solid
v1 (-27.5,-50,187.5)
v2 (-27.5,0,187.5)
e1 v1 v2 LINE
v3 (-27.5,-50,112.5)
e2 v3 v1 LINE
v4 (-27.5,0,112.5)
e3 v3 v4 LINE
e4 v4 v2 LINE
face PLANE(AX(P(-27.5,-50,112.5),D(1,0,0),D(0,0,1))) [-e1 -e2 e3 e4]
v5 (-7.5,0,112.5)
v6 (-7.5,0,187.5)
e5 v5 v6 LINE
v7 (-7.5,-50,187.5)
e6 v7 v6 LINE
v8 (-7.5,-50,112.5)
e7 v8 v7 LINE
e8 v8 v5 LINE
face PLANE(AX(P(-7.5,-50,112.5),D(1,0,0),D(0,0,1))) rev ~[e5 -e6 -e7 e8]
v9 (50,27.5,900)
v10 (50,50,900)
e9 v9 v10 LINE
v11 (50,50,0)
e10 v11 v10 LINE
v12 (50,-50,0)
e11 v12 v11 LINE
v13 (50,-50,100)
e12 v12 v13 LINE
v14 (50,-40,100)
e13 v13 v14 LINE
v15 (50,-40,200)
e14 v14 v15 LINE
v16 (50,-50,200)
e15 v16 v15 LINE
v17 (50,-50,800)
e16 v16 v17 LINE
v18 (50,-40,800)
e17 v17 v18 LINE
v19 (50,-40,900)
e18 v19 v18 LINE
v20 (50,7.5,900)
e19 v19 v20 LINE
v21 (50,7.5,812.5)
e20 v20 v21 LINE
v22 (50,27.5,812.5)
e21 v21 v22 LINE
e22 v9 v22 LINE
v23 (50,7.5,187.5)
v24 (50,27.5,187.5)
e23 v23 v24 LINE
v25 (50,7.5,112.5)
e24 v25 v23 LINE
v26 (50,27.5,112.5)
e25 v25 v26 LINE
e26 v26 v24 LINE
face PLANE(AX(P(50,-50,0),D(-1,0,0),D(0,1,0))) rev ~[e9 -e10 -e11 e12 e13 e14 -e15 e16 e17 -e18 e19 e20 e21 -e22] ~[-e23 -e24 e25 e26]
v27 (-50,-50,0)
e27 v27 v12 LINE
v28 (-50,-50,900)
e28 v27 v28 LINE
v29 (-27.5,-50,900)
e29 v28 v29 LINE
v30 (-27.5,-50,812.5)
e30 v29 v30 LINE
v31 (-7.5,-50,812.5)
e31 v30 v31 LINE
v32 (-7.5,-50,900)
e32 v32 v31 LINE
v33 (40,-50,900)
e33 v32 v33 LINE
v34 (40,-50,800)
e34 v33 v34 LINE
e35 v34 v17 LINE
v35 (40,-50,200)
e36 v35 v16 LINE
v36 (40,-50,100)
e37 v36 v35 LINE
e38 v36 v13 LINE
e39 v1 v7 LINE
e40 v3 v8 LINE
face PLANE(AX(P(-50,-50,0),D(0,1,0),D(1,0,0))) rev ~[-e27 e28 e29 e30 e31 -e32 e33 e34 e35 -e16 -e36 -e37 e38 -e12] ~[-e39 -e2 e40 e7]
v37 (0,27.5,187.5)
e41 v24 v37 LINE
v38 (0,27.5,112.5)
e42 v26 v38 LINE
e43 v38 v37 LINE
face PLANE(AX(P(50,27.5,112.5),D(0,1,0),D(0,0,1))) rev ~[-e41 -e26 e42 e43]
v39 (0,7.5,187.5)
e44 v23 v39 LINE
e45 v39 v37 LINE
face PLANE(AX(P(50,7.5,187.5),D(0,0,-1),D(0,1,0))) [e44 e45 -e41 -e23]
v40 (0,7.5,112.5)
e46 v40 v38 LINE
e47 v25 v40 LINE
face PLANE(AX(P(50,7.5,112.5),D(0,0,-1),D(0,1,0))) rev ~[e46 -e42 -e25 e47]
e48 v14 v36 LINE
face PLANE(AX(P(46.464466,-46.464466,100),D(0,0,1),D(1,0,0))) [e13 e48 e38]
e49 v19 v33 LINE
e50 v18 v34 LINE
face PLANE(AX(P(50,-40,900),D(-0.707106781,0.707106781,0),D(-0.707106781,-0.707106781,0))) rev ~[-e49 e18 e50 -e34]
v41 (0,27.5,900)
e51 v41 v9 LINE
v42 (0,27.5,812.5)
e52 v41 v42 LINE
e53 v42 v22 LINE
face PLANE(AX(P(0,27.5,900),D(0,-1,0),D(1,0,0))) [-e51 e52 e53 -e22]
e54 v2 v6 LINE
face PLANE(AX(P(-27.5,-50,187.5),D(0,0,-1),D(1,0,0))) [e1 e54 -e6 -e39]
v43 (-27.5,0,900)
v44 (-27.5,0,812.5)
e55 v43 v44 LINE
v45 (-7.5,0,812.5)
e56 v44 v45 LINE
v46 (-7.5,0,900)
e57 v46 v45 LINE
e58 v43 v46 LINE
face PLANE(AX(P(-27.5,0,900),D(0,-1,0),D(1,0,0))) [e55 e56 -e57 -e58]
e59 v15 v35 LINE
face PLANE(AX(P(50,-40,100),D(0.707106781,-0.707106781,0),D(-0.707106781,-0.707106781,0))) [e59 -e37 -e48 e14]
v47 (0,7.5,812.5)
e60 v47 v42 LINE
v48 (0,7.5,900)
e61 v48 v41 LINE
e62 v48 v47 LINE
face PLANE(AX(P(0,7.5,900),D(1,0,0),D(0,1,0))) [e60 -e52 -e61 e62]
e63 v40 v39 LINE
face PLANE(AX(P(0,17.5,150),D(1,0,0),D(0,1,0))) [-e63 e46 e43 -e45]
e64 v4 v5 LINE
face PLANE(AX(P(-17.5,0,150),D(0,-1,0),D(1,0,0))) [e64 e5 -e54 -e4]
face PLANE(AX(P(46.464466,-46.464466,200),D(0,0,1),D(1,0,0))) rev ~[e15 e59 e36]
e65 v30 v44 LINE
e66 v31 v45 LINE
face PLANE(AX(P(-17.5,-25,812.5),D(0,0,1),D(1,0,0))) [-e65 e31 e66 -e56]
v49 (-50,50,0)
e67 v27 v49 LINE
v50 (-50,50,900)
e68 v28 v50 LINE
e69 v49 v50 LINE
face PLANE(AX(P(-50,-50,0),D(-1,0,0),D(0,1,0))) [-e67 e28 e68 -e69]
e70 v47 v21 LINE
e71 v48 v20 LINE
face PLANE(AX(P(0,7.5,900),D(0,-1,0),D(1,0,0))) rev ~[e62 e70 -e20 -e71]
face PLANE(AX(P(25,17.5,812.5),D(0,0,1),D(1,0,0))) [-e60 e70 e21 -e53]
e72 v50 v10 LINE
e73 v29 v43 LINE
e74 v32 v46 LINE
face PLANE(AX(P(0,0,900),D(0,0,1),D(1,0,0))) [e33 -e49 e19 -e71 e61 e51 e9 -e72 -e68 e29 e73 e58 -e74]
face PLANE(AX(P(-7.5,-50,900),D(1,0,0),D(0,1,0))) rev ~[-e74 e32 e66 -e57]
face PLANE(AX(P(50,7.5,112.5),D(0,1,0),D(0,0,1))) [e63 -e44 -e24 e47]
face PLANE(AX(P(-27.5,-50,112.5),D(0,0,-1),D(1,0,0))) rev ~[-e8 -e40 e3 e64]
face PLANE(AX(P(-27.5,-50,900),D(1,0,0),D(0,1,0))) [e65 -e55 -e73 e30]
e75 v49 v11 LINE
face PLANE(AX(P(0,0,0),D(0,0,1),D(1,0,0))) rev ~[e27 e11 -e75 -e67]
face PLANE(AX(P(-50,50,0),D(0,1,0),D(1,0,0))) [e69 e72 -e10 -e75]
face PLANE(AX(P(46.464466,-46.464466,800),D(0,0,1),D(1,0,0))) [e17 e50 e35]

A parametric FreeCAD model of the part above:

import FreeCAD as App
import Part
import Sketcher
Q = App.Units.Quantity

doc = App.newDocument("Part")
body = doc.addObject("PartDesign::Body", "Body")

sketch1 = body.newObject("Sketcher::SketchObject", "Sketch")
sketch1.AttachmentSupport = (doc.getObject("XY_Plane"), [""])
sketch1.MapMode = "FlatFace"
sketch1.addGeometry(Part.LineSegment(App.Vector(-50, 50, 0), App.Vector(-50, -50, 0)), False)
sketch1.addGeometry(Part.LineSegment(App.Vector(-50, -50, 0), App.Vector(50, -50, 0)), False)
sketch1.addGeometry(Part.LineSegment(App.Vector(50, -50, 0), App.Vector(50, 50, 0)), False)
sketch1.addGeometry(Part.LineSegment(App.Vector(50, 50, 0), App.Vector(-50, 50, 0)), False)
sketch1.addConstraint(Sketcher.Constraint("Coincident", 0, 2, 1, 1))
sketch1.addConstraint(Sketcher.Constraint("Coincident", 1, 2, 2, 1))
sketch1.addConstraint(Sketcher.Constraint("Coincident", 2, 2, 3, 1))
sketch1.addConstraint(Sketcher.Constraint("Coincident", 3, 2, 0, 1))
sketch1.addConstraint(Sketcher.Constraint("Vertical", 0))
sketch1.addConstraint(Sketcher.Constraint("Horizontal", 1))
sketch1.addConstraint(Sketcher.Constraint("Vertical", 2))
sketch1.addConstraint(Sketcher.Constraint("Horizontal", 3))
sketch1.addConstraint(Sketcher.Constraint("Symmetric", 0, 2, 2, 2, -1, 1))
sketch1.addConstraint(Sketcher.Constraint("Equal", 3, 0))
sketch1.addConstraint(Sketcher.Constraint("DistanceX", 1, 1, 1, 2, Q("100 mm")))
pad1 = body.newObject("PartDesign::Pad", "Pad")
pad1.Profile = sketch1
pad1.Length = 900

sketch2 = body.newObject("Sketcher::SketchObject", "Sketch001")
sketch2.AttachmentSupport = (doc.getObject("YZ_Plane"), [""])
sketch2.MapMode = "FlatFace"
sketch2.AttachmentOffset = App.Placement(App.Vector(0, 0, 50), App.Rotation())
sketch2.addGeometry(Part.LineSegment(App.Vector(8, 188, 0), App.Vector(8, 112, 0)), False)
sketch2.addGeometry(Part.LineSegment(App.Vector(8, 112, 0), App.Vector(28, 112, 0)), False)
sketch2.addGeometry(Part.LineSegment(App.Vector(28, 112, 0), App.Vector(28, 188, 0)), False)
sketch2.addGeometry(Part.LineSegment(App.Vector(28, 188, 0), App.Vector(8, 188, 0)), False)
sketch2.addConstraint(Sketcher.Constraint("Coincident", 0, 2, 1, 1))
sketch2.addConstraint(Sketcher.Constraint("Coincident", 1, 2, 2, 1))
sketch2.addConstraint(Sketcher.Constraint("Coincident", 2, 2, 3, 1))
sketch2.addConstraint(Sketcher.Constraint("Coincident", 3, 2, 0, 1))
sketch2.addConstraint(Sketcher.Constraint("Vertical", 0))
sketch2.addConstraint(Sketcher.Constraint("Horizontal", 1))
sketch2.addConstraint(Sketcher.Constraint("Vertical", 2))
sketch2.addConstraint(Sketcher.Constraint("Horizontal", 3))
sketch2.addConstraint(Sketcher.Constraint("DistanceX", 1, 1, 1, 2, Q("20 mm")))
sketch2.addConstraint(Sketcher.Constraint("DistanceY", 0, 2, 0, 1, Q("75 mm")))
sketch2.addConstraint(Sketcher.Constraint("DistanceX", -1, 1, 0, 2, Q("7.5 mm")))
sketch2.addConstraint(Sketcher.Constraint("DistanceY", -1, 1, 0, 2, Q("112.5 mm")))
pocket1 = body.newObject("PartDesign::Pocket", "Pocket")
pocket1.Profile = sketch2
pocket1.Length = 50

sketch3 = body.newObject("Sketcher::SketchObject", "Sketch002")
sketch3.AttachmentSupport = (doc.getObject("XZ_Plane"), [""])
sketch3.MapMode = "FlatFace"
sketch3.AttachmentOffset = App.Placement(App.Vector(0, 0, 50), App.Rotation())
sketch3.addGeometry(Part.LineSegment(App.Vector(-28, 188, 0), App.Vector(-28, 112, 0)), False)
sketch3.addGeometry(Part.LineSegment(App.Vector(-28, 112, 0), App.Vector(-8, 112, 0)), False)
sketch3.addGeometry(Part.LineSegment(App.Vector(-8, 112, 0), App.Vector(-8, 188, 0)), False)
sketch3.addGeometry(Part.LineSegment(App.Vector(-8, 188, 0), App.Vector(-28, 188, 0)), False)
sketch3.addConstraint(Sketcher.Constraint("Coincident", 0, 2, 1, 1))
sketch3.addConstraint(Sketcher.Constraint("Coincident", 1, 2, 2, 1))
sketch3.addConstraint(Sketcher.Constraint("Coincident", 2, 2, 3, 1))
sketch3.addConstraint(Sketcher.Constraint("Coincident", 3, 2, 0, 1))
sketch3.addConstraint(Sketcher.Constraint("Vertical", 0))
sketch3.addConstraint(Sketcher.Constraint("Horizontal", 1))
sketch3.addConstraint(Sketcher.Constraint("Vertical", 2))
sketch3.addConstraint(Sketcher.Constraint("Horizontal", 3))
sketch3.addConstraint(Sketcher.Constraint("DistanceX", 1, 1, 1, 2, Q("20 mm")))
sketch3.addConstraint(Sketcher.Constraint("DistanceY", 0, 2, 0, 1, Q("75 mm")))
sketch3.addConstraint(Sketcher.Constraint("DistanceX", 0, 2, -1, 1, Q("27.5 mm")))
sketch3.addConstraint(Sketcher.Constraint("DistanceY", -1, 1, 0, 2, Q("112.5 mm")))
pocket2 = body.newObject("PartDesign::Pocket", "Pocket001")
pocket2.Profile = sketch3
pocket2.Length = 50
body2 = doc.addObject("PartDesign::Body", "Body001")

sketch4 = body2.newObject("Sketcher::SketchObject", "Sketch003")
sketch4.AttachmentSupport = (doc.getObject("XY_Plane001"), [""])
sketch4.MapMode = "FlatFace"
sketch4.addGeometry(Part.LineSegment(App.Vector(50, -40, 0), App.Vector(40, -50, 0)), False)
sketch4.addGeometry(Part.LineSegment(App.Vector(40, -50, 0), App.Vector(50, -50, 0)), False)
sketch4.addGeometry(Part.LineSegment(App.Vector(50, -50, 0), App.Vector(50, -40, 0)), False)
sketch4.addConstraint(Sketcher.Constraint("Coincident", 0, 2, 1, 1))
sketch4.addConstraint(Sketcher.Constraint("Coincident", 1, 2, 2, 1))
sketch4.addConstraint(Sketcher.Constraint("Coincident", 2, 2, 0, 1))
sketch4.addConstraint(Sketcher.Constraint("Horizontal", 1))
sketch4.addConstraint(Sketcher.Constraint("Vertical", 2))
sketch4.addConstraint(Sketcher.Constraint("Equal", 1, 2))
sketch4.addConstraint(Sketcher.Constraint("DistanceX", 1, 1, 1, 2, Q("10 mm")))
sketch4.addConstraint(Sketcher.Constraint("DistanceX", -1, 1, 0, 2, Q("40 mm")))
sketch4.addConstraint(Sketcher.Constraint("DistanceY", 0, 2, -1, 1, Q("50 mm")))
pad2 = body2.newObject("PartDesign::Pad", "Pad001")
pad2.Profile = sketch4
pad2.Length = 100
body3 = doc.addObject("PartDesign::Body", "Body002")
doc.recompute()

body2.Placement = App.Placement(App.Vector(0, 0, 100), App.Rotation(App.Vector(0, 0, 1), 0))
boolean = body3.newObject("PartDesign::Boolean", "Boolean")
boolean.Type = "Fuse"
boolean.addObjects([body2])
doc.recompute()

boolean2 = body.newObject("PartDesign::Boolean", "Boolean001")
boolean2.Type = "Cut"
boolean2.addObjects([body3])

sketch5 = body.newObject("Sketcher::SketchObject", "Sketch004")
sketch5.AttachmentSupport = (doc.getObject("XY_Plane"), [""])
sketch5.MapMode = "FlatFace"
sketch5.AttachmentOffset = App.Placement(App.Vector(0, 0, 900), App.Rotation())
sketch5.addGeometry(Part.LineSegment(App.Vector(0, 28, 0), App.Vector(0, 8, 0)), False)
sketch5.addGeometry(Part.LineSegment(App.Vector(0, 8, 0), App.Vector(50, 8, 0)), False)
sketch5.addGeometry(Part.LineSegment(App.Vector(50, 8, 0), App.Vector(50, 28, 0)), False)
sketch5.addGeometry(Part.LineSegment(App.Vector(50, 28, 0), App.Vector(0, 28, 0)), False)
sketch5.addGeometry(Part.LineSegment(App.Vector(-28, 0, 0), App.Vector(-28, -50, 0)), False)
sketch5.addGeometry(Part.LineSegment(App.Vector(-28, -50, 0), App.Vector(-8, -50, 0)), False)
sketch5.addGeometry(Part.LineSegment(App.Vector(-8, -50, 0), App.Vector(-8, 0, 0)), False)
sketch5.addGeometry(Part.LineSegment(App.Vector(-8, 0, 0), App.Vector(-28, 0, 0)), False)
sketch5.addConstraint(Sketcher.Constraint("Coincident", 0, 2, 1, 1))
sketch5.addConstraint(Sketcher.Constraint("Coincident", 1, 2, 2, 1))
sketch5.addConstraint(Sketcher.Constraint("Coincident", 2, 2, 3, 1))
sketch5.addConstraint(Sketcher.Constraint("Coincident", 3, 2, 0, 1))
sketch5.addConstraint(Sketcher.Constraint("Coincident", 4, 2, 5, 1))
sketch5.addConstraint(Sketcher.Constraint("Coincident", 5, 2, 6, 1))
sketch5.addConstraint(Sketcher.Constraint("Coincident", 6, 2, 7, 1))
sketch5.addConstraint(Sketcher.Constraint("Coincident", 7, 2, 4, 1))
sketch5.addConstraint(Sketcher.Constraint("Vertical", 0))
sketch5.addConstraint(Sketcher.Constraint("Horizontal", 1))
sketch5.addConstraint(Sketcher.Constraint("Vertical", 2))
sketch5.addConstraint(Sketcher.Constraint("Horizontal", 3))
sketch5.addConstraint(Sketcher.Constraint("Vertical", 4))
sketch5.addConstraint(Sketcher.Constraint("Horizontal", 5))
sketch5.addConstraint(Sketcher.Constraint("Vertical", 6))
sketch5.addConstraint(Sketcher.Constraint("Horizontal", 7))
sketch5.addConstraint(Sketcher.Constraint("PointOnObject", 0, 2, -2))
sketch5.addConstraint(Sketcher.Constraint("PointOnObject", 6, 2, -1))
sketch5.addConstraint(Sketcher.Constraint("Equal", 7, 0))
sketch5.addConstraint(Sketcher.Constraint("Equal", 3, 4))
sketch5.addConstraint(Sketcher.Constraint("DistanceX", 1, 1, 1, 2, Q("50 mm")))
sketch5.addConstraint(Sketcher.Constraint("DistanceX", 5, 1, 5, 2, Q("20 mm")))
sketch5.addConstraint(Sketcher.Constraint("DistanceY", -1, 1, 0, 2, Q("7.5 mm")))
sketch5.addConstraint(Sketcher.Constraint("DistanceX", 4, 2, -1, 1, Q("27.5 mm")))
pocket3 = body.newObject("PartDesign::Pocket", "Pocket002")
pocket3.Profile = sketch5
pocket3.Length = 87.5

sketch6 = body.newObject("Sketcher::SketchObject", "Sketch005")
sketch6.AttachmentSupport = (doc.getObject("XY_Plane"), [""])
sketch6.MapMode = "FlatFace"
sketch6.AttachmentOffset = App.Placement(App.Vector(0, 0, 900), App.Rotation())
sketch6.addGeometry(Part.LineSegment(App.Vector(50, -50, 0), App.Vector(50, -40, 0)), False)
sketch6.addGeometry(Part.LineSegment(App.Vector(50, -40, 0), App.Vector(40, -50, 0)), False)
sketch6.addGeometry(Part.LineSegment(App.Vector(40, -50, 0), App.Vector(50, -50, 0)), False)
sketch6.addConstraint(Sketcher.Constraint("Coincident", 0, 2, 1, 1))
sketch6.addConstraint(Sketcher.Constraint("Coincident", 1, 2, 2, 1))
sketch6.addConstraint(Sketcher.Constraint("Coincident", 2, 2, 0, 1))
sketch6.addConstraint(Sketcher.Constraint("Vertical", 0))
sketch6.addConstraint(Sketcher.Constraint("Horizontal", 2))
sketch6.addConstraint(Sketcher.Constraint("Equal", 2, 0))
sketch6.addConstraint(Sketcher.Constraint("DistanceX", 2, 1, 2, 2, Q("10 mm")))
sketch6.addConstraint(Sketcher.Constraint("DistanceX", -1, 1, 0, 2, Q("50 mm")))
sketch6.addConstraint(Sketcher.Constraint("DistanceY", 0, 2, -1, 1, Q("40 mm")))
pocket4 = body.newObject("PartDesign::Pocket", "Pocket003")
pocket4.Profile = sketch6
pocket4.Length = 100

doc.recompute()
